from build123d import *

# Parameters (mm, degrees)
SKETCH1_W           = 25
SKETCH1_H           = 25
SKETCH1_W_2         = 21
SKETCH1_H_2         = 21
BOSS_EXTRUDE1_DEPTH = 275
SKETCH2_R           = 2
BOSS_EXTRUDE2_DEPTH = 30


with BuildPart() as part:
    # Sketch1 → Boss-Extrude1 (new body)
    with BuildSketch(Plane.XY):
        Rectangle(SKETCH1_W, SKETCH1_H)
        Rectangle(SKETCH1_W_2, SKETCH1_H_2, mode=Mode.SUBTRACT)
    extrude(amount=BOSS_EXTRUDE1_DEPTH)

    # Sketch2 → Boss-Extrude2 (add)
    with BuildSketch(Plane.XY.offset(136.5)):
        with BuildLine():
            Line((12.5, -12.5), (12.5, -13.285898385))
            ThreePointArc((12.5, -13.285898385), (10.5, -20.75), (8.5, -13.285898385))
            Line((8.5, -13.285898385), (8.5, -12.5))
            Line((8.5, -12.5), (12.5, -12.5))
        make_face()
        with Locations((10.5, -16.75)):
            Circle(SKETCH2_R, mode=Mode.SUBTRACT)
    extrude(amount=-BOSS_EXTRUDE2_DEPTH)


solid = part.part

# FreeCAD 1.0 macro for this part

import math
import FreeCAD as App
import Part
import Sketcher
from FreeCAD import Vector
Q = App.Units.Quantity


def add_polygon(sketch, points):
    """Adds a closed chain of lines whose ends are joined by coincident constraints."""
    first, n = sketch.GeometryCount, len(points)
    for a, b in zip(points, points[1:] + points[:1]):
        sketch.addGeometry(Part.LineSegment(App.Vector(*a, 0), App.Vector(*b, 0)), False)
    for i in range(n):
        sketch.addConstraint(Sketcher.Constraint("Coincident", first + i, 2, first + (i + 1) % n, 1))

doc = App.newDocument("Part")
body = doc.addObject("PartDesign::Body", "Body")

# Sketch on XY plane
sketch1 = doc.addObject("Sketcher::SketchObject", "Sketch")
body.addObject(sketch1)
sketch1.AttachmentSupport = (doc.XY_Plane, [""])
sketch1.MapMode = "FlatFace"
add_polygon(sketch1, [(-12, 12), (-12, -12), (12, -12), (12, 12)])  # lines 0-3
add_polygon(sketch1, [(10, -10), (-10, -10), (-10, 10), (10, 10)])  # lines 4-7
sketch1.addConstraint([
    Sketcher.Constraint("Vertical", 0),
    Sketcher.Constraint("Horizontal", 1),
    Sketcher.Constraint("Vertical", 2),
    Sketcher.Constraint("Horizontal", 3),
    Sketcher.Constraint("Horizontal", 4),
    Sketcher.Constraint("Vertical", 5),
    Sketcher.Constraint("Horizontal", 6),
    Sketcher.Constraint("Vertical", 7),
    Sketcher.Constraint("Symmetric", 0, 2, 2, 2, -1, 1),
    Sketcher.Constraint("Symmetric", 4, 2, 6, 2, -1, 1),
    Sketcher.Constraint("Equal", 3, 0),
    Sketcher.Constraint("Equal", 6, 5),
    Sketcher.Constraint("DistanceX", 1, 1, 1, 2, Q("25 mm")),
    Sketcher.Constraint("DistanceX", 4, 2, 4, 1, Q("21 mm")),
])
pad1 = doc.addObject("PartDesign::Pad", "Pad")
body.addObject(pad1)
pad1.Profile = sketch1
pad1.Length = 275

# Sketch on XY plane
sketch2 = doc.addObject("Sketcher::SketchObject", "Sketch001")
body.addObject(sketch2)
sketch2.AttachmentSupport = (doc.XY_Plane, [""])
sketch2.MapMode = "FlatFace"
sketch2.AttachmentOffset = App.Placement(Vector(0, 0, 136.5), App.Rotation())
sketch2.addGeometry([
    Part.LineSegment(Vector(12.5, -13.3, 0), Vector(12.5, -12.5, 0)),  # 0
    Part.LineSegment(Vector(12.5, -12.5, 0), Vector(8.5, -12.5, 0)),  # 1
    Part.LineSegment(Vector(8.5, -12.5, 0), Vector(8.5, -13.3, 0)),  # 2
    Part.ArcOfCircle(Part.Circle(Vector(10.5, -16.8, 0), Vector(0, 0, 1), 4), math.radians(120), math.radians(420)),  # 3
    Part.Circle(Vector(10.5, -16.8, 0), Vector(0, 0, 1), 2),  # 4
], False)
sketch2.addConstraint([
    Sketcher.Constraint("Coincident", 0, 2, 1, 1),
    Sketcher.Constraint("Coincident", 1, 2, 2, 1),
    Sketcher.Constraint("Coincident", 2, 2, 3, 1),
    Sketcher.Constraint("Coincident", 3, 2, 0, 1),
    Sketcher.Constraint("Vertical", 0),
    Sketcher.Constraint("Horizontal", 1),
    Sketcher.Constraint("Vertical", 2),
    Sketcher.Constraint("Coincident", 4, 3, 3, 3),
    Sketcher.Constraint("Horizontal", 2, 2, 3, 2),
    Sketcher.Constraint("Diameter", 4, Q("4 mm")),
    Sketcher.Constraint("Radius", 3, Q("4 mm")),
    Sketcher.Constraint("DistanceX", 1, 2, 1, 1, Q("4 mm")),
    Sketcher.Constraint("DistanceX", -1, 1, 3, 3, Q("10.5 mm")),
    Sketcher.Constraint("DistanceY", 0, 2, -1, 1, Q("12.5 mm")),
    Sketcher.Constraint("DistanceY", 3, 3, -1, 1, Q("16.75 mm")),
])
pad2 = doc.addObject("PartDesign::Pad", "Pad001")
body.addObject(pad2)
pad2.Profile = sketch2
pad2.Length = 30
pad2.Reversed = True

doc.recompute()
